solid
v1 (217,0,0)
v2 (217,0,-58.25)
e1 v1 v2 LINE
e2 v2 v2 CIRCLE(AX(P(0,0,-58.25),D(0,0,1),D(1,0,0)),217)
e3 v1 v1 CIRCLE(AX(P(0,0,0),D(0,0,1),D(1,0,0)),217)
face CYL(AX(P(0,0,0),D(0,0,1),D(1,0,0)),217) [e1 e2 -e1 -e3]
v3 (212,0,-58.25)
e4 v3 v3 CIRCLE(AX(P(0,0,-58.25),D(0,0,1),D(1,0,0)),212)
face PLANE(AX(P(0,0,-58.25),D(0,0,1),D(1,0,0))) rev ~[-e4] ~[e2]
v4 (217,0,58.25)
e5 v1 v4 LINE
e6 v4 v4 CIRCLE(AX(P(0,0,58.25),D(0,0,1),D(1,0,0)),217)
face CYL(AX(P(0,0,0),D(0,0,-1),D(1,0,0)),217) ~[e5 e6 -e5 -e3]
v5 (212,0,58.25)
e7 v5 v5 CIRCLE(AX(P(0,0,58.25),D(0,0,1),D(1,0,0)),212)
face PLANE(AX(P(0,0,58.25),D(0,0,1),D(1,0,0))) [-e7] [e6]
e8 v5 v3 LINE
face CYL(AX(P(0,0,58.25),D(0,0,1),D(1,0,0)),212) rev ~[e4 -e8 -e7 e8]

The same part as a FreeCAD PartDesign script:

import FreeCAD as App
import Part
import Sketcher
from FreeCAD import Vector

doc = App.newDocument("Part")
body = doc.addObject("PartDesign::Body", "Body")

# Sketch on XY plane
sketch1 = body.newObject("Sketcher::SketchObject", "Sketch")
sketch1.AttachmentSupport = (doc.getObject("XY_Plane"), [""])
sketch1.MapMode = "FlatFace"
sketch1.addGeometry(Part.Circle(Vector(0, 0, 0), Vector(0, 0, 1), 217), False)
sketch1.addConstraint(Sketcher.Constraint("Coincident", 0, 3, -1, 1))
sketch1.addConstraint(Sketcher.Constraint("Diameter", 0, 434.0))
pad1 = body.newObject("PartDesign::Pad", "Pad")
pad1.Profile = sketch1
pad1.Length = 116.5
pad1.Midplane = True

# Sketch on XY plane
sketch2 = body.newObject("Sketcher::SketchObject", "Sketch001")
sketch2.AttachmentSupport = (doc.getObject("XY_Plane"), [""])
sketch2.MapMode = "FlatFace"
sketch2.AttachmentOffset = App.Placement(Vector(0, 0, 58.25), App.Rotation())
sketch2.addGeometry(Part.Circle(Vector(0, 0, 0), Vector(0, 0, 1), 212), False)
sketch2.addConstraint(Sketcher.Constraint("Coincident", 0, 3, -1, 1))
sketch2.addConstraint(Sketcher.Constraint("Diameter", 0, 424.0))
pocket1 = body.newObject("PartDesign::Pocket", "Pocket")
pocket1.Profile = sketch2
pocket1.Type = "ThroughAll"

doc.recompute()
